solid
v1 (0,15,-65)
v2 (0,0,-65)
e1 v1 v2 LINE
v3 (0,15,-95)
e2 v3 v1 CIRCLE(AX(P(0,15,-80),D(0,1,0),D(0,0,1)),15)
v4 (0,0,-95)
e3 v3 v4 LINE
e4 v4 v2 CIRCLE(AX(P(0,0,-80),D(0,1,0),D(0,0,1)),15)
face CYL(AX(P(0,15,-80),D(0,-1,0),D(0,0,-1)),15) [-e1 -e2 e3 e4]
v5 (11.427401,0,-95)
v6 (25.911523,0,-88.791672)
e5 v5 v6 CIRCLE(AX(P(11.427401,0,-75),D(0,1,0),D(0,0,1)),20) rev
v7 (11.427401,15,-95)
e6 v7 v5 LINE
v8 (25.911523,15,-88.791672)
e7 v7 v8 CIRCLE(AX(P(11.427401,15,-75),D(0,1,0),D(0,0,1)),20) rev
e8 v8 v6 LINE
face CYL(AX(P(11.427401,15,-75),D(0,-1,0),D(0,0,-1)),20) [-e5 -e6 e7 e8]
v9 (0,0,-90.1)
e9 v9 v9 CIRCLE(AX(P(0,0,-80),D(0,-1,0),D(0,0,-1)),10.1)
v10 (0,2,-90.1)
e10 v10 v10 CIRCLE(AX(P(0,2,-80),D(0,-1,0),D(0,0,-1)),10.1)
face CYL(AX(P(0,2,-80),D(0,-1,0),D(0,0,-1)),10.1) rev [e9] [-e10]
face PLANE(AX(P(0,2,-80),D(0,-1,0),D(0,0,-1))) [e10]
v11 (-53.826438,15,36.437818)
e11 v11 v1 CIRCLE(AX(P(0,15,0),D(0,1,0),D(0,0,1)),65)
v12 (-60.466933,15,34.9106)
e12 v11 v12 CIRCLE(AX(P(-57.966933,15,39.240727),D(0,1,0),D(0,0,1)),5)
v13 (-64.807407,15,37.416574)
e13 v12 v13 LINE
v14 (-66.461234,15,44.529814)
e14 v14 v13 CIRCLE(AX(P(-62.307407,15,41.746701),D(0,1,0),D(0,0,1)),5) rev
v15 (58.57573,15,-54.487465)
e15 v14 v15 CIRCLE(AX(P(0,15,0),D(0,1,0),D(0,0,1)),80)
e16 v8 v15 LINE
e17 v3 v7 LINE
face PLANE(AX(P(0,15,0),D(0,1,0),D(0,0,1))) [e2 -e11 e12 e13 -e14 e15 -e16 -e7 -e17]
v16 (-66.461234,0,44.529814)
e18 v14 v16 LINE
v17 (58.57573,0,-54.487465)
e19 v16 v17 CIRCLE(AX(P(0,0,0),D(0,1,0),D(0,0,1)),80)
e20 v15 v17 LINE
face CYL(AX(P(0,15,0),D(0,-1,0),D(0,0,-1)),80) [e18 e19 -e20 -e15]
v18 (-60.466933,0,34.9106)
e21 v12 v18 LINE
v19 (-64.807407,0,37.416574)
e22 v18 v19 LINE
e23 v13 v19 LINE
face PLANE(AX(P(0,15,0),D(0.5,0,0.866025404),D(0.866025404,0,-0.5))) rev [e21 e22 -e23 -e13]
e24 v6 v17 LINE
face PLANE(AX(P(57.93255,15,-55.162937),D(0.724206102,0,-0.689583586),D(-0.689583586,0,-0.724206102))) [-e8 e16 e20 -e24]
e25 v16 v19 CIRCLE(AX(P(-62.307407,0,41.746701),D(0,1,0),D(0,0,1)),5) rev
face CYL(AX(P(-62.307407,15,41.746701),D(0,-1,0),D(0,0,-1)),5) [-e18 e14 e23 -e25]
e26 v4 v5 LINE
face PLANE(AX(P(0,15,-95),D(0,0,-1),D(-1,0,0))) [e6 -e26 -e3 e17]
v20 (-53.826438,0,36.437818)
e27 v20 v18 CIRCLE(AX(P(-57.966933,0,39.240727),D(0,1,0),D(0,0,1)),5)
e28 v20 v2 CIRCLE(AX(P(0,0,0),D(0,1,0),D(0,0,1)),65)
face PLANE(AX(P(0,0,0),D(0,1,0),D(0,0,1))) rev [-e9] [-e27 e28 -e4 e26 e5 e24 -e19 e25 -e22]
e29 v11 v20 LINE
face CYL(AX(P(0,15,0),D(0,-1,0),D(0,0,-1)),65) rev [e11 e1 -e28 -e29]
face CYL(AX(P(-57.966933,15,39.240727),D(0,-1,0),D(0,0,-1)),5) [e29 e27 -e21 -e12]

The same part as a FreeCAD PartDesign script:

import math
import FreeCAD as App
import Part
import Sketcher

V = App.Vector
Q = App.Units.Quantity

doc = App.newDocument("Part")
body = doc.addObject("PartDesign::Body", "Body")

sketch1 = body.newObject("Sketcher::SketchObject", "Sketch")
sketch1.AttachmentSupport = (doc.getObject("XZ_Plane"), [""])
sketch1.MapMode = "FlatFace"
sketch1.addGeometry(Part.ArcOfCircle(Part.Circle(V(-58, 39.2, 0), V(0, 0, 1), 5), math.radians(-120), math.radians(-34)), False)
sketch1.addGeometry(Part.LineSegment(V(-60.5, 34.9, 0), V(-64.8, 37.4, 0)), False)
sketch1.addGeometry(Part.ArcOfCircle(Part.Circle(V(-62.3, 41.7, 0), V(0, 0, 1), 5), math.radians(146), math.radians(240)), False)
sketch1.addGeometry(Part.ArcOfCircle(Part.Circle(V(0, 0, 0), V(0, 0, 1), 80), math.radians(-43), math.radians(146)), False)
sketch1.addGeometry(Part.LineSegment(V(58.6, -54.5, 0), V(57.3, -55.8, 0)), False)
sketch1.addGeometry(Part.LineSegment(V(57.3, -55.8, 0), V(25.9, -88.8, 0)), False)
sketch1.addGeometry(Part.ArcOfCircle(Part.Circle(V(11.4, -75, 0), V(0, 0, 1), 20), math.radians(-90), math.radians(-44)), False)
sketch1.addGeometry(Part.LineSegment(V(11.4, -95, 0), V(0, -95, 0)), False)
sketch1.addGeometry(Part.ArcOfCircle(Part.Circle(V(0, -80, 0), V(0, 0, 1), 15), math.radians(90), math.radians(270)), False)
sketch1.addGeometry(Part.ArcOfCircle(Part.Circle(V(0, 0, 0), V(0, 0, 1), 65), math.radians(-90), math.radians(146)), False)
sketch1.addConstraint(Sketcher.Constraint("Tangent", 0, 1, 1, 1))
sketch1.addConstraint(Sketcher.Constraint("Tangent", 1, 2, 2, 2))
sketch1.addConstraint(Sketcher.Constraint("Tangent", 2, 1, 3, 2))
sketch1.addConstraint(Sketcher.Constraint("Coincident", 3, 1, 4, 1))
sketch1.addConstraint(Sketcher.Constraint("Coincident", 4, 2, 5, 1))
sketch1.addConstraint(Sketcher.Constraint("Tangent", 5, 2, 6, 2))
sketch1.addConstraint(Sketcher.Constraint("Tangent", 6, 1, 7, 1))
sketch1.addConstraint(Sketcher.Constraint("Tangent", 7, 2, 8, 2))
sketch1.addConstraint(Sketcher.Constraint("Tangent", 8, 1, 9, 1))
sketch1.addConstraint(Sketcher.Constraint("Tangent", 9, 2, 0, 2))
sketch1.addConstraint(Sketcher.Constraint("Horizontal", 7))
sketch1.addConstraint(Sketcher.Constraint("Coincident", 3, 3, -1, 1))
sketch1.addConstraint(Sketcher.Constraint("Coincident", 9, 3, -1, 1))
sketch1.addConstraint(Sketcher.Constraint("Equal", 0, 2))
sketch1.addConstraint(Sketcher.Constraint("PointOnObject", 8, 3, -2))
sketch1.addConstraint(Sketcher.Constraint("Parallel", 4, 5))
sketch1.addConstraint(Sketcher.Constraint("Radius", 0, Q("5 mm")))
sketch1.addConstraint(Sketcher.Constraint("Radius", 3, Q("80 mm")))
sketch1.addConstraint(Sketcher.Constraint("Radius", 6, Q("20 mm")))
sketch1.addConstraint(Sketcher.Constraint("Radius", 8, Q("15 mm")))
sketch1.addConstraint(Sketcher.Constraint("Radius", 9, Q("65 mm")))
sketch1.addConstraint(Sketcher.Constraint("Angle", 1, Q("150 deg")))
sketch1.addConstraint(Sketcher.Constraint("DistanceX", 7, 2, 7, 1, Q("11.427401 mm")))
sketch1.addConstraint(Sketcher.Constraint("DistanceY", -1, 1, 2, 3, Q("41.746701 mm")))
sketch1.addConstraint(Sketcher.Constraint("DistanceX", -1, 1, 3, 1, Q("58.57573 mm")))
sketch1.addConstraint(Sketcher.Constraint("DistanceX", -1, 1, 4, 2, Q("57.289371 mm")))
pad1 = body.newObject("PartDesign::Pad", "Pad")
pad1.Profile = sketch1
pad1.Length = 15
pad1.Reversed = True

sketch2 = body.newObject("Sketcher::SketchObject", "Sketch001")
sketch2.AttachmentSupport = (doc.getObject("XZ_Plane"), [""])
sketch2.MapMode = "FlatFace"
sketch2.addGeometry(Part.Circle(V(0, -80, 0), V(0, 0, 1), 10), False)
sketch2.addConstraint(Sketcher.Constraint("PointOnObject", 0, 3, -2))
sketch2.addConstraint(Sketcher.Constraint("Diameter", 0, Q("20.2 mm")))
sketch2.addConstraint(Sketcher.Constraint("DistanceY", 0, 3, -1, 1, Q("80 mm")))
pocket1 = body.newObject("PartDesign::Pocket", "Pocket")
pocket1.Profile = sketch2
pocket1.Length = 2

doc.recompute()
